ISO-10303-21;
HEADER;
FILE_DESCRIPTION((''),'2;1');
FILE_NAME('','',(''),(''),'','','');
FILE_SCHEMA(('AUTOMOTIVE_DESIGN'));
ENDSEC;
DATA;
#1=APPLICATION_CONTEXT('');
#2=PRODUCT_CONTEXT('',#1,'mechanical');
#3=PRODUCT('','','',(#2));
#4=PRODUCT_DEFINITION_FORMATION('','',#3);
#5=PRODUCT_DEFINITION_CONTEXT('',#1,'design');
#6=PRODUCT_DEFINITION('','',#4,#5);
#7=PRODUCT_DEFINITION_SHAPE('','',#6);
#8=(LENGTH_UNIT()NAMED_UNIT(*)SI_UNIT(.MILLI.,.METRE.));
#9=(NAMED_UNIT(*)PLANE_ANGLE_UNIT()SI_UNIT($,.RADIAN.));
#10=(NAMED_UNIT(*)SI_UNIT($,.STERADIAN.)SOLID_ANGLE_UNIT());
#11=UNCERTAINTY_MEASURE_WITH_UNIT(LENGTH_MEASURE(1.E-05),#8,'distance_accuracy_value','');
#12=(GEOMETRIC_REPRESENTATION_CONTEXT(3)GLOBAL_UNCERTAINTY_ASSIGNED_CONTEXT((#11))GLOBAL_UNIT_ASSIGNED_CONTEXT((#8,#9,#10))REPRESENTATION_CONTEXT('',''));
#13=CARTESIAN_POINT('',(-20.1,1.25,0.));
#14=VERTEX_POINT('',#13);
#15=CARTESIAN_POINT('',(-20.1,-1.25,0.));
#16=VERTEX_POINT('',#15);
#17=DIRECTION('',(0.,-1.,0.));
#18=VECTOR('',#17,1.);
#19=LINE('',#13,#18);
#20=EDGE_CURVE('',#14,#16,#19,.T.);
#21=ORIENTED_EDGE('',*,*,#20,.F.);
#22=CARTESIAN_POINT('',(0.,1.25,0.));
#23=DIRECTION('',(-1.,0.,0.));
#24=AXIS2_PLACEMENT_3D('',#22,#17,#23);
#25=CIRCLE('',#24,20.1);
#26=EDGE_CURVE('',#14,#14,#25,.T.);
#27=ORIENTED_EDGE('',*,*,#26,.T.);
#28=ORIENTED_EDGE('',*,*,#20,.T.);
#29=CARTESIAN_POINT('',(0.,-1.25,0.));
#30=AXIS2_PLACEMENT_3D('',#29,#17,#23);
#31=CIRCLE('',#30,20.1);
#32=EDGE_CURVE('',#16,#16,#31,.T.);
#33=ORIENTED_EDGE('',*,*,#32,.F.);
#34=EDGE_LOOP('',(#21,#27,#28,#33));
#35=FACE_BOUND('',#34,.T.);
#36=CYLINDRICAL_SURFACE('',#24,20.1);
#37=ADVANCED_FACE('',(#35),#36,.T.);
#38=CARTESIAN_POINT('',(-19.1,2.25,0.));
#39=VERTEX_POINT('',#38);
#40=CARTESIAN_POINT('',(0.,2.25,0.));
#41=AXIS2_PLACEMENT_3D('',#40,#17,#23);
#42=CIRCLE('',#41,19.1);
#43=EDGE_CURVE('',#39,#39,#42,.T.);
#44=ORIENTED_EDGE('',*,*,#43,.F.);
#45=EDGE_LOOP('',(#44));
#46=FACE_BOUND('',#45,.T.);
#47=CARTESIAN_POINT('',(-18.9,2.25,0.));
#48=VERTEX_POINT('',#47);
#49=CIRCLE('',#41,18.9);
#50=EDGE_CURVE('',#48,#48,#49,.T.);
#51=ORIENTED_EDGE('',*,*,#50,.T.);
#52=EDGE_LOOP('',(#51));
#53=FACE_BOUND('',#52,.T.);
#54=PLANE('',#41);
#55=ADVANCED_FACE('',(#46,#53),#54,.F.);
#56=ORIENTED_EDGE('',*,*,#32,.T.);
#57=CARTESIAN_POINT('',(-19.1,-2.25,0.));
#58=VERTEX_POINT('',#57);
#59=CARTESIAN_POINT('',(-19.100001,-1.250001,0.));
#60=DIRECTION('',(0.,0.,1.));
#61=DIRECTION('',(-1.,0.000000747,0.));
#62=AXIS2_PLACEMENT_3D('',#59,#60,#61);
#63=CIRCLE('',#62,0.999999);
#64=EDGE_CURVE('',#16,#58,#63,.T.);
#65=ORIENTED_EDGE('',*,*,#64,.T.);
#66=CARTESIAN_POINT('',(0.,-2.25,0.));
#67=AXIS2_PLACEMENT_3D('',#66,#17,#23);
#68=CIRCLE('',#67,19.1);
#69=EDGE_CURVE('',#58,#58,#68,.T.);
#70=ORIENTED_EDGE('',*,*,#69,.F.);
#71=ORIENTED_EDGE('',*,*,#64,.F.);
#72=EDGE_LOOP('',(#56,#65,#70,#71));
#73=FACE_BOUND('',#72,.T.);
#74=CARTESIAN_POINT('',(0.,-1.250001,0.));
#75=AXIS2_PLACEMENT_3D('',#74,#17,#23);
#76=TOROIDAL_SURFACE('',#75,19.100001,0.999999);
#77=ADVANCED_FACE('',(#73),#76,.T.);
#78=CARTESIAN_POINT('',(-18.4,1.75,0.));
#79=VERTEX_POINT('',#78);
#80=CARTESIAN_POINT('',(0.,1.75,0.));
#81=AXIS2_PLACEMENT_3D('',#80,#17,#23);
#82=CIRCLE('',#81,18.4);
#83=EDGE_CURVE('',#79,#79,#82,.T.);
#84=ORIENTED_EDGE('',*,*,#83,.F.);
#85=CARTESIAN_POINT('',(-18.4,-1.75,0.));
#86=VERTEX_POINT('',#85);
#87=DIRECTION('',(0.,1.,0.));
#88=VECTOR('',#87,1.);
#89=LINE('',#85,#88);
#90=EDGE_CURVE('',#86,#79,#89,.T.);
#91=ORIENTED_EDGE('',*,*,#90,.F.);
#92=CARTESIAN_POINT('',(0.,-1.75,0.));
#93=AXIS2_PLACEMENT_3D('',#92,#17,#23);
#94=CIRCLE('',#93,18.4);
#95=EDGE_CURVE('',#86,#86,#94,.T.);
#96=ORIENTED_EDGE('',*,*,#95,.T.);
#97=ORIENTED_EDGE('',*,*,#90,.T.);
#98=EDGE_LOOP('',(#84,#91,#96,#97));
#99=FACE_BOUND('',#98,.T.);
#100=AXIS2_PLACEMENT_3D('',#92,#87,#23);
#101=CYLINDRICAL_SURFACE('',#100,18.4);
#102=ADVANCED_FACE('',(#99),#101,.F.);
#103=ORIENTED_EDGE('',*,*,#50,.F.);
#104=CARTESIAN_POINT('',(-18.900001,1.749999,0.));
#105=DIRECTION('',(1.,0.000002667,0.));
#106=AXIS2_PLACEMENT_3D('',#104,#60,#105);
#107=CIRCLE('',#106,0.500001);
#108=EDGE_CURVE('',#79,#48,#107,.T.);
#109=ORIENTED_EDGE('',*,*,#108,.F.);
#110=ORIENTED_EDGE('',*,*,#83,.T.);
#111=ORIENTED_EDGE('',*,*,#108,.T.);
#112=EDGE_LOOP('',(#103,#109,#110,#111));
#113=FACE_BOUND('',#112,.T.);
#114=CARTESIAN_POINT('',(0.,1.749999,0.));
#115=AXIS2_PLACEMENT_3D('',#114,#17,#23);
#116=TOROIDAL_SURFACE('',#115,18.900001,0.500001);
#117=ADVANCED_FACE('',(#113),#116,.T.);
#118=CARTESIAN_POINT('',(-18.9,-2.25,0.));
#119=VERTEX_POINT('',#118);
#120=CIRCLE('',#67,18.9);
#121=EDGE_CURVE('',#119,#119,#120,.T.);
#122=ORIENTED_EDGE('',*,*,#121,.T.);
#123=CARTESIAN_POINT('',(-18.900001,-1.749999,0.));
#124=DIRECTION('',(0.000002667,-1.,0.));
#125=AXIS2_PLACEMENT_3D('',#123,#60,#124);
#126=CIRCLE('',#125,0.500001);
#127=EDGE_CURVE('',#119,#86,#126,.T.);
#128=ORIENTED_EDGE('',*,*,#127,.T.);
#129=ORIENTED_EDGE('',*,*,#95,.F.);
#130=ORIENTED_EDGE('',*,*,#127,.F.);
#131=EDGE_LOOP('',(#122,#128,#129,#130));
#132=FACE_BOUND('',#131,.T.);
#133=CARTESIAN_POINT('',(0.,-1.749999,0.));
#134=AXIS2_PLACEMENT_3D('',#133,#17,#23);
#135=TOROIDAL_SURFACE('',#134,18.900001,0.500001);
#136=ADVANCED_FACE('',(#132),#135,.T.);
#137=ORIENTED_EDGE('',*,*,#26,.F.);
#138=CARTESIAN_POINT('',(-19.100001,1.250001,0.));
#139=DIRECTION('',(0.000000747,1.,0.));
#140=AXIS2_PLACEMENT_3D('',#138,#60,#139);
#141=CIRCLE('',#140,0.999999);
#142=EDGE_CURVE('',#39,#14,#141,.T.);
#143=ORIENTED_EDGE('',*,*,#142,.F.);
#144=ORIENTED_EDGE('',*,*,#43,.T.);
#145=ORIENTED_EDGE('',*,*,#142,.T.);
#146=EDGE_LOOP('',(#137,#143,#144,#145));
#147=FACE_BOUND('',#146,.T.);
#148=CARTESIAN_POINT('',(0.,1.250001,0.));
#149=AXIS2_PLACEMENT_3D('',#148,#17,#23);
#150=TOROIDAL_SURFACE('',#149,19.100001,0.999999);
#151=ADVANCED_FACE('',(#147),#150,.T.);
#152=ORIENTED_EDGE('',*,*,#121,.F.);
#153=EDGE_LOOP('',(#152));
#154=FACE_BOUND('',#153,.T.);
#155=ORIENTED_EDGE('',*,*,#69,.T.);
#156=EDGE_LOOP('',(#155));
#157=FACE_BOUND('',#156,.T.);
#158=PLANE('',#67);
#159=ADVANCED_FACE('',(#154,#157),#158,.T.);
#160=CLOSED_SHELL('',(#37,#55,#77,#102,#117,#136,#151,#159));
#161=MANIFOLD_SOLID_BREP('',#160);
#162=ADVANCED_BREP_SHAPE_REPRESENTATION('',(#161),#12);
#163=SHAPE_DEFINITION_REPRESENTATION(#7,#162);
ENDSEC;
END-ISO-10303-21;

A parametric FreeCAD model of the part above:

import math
import FreeCAD as App
import Part
import Sketcher
from FreeCAD import Vector

doc = App.newDocument("Part")
body = doc.addObject("PartDesign::Body", "Body")

# Sketch on XY plane
sketch1 = body.newObject("Sketcher::SketchObject", "Sketch")
sketch1.AttachmentSupport = (doc.getObject("XY_Plane"), [""])
sketch1.MapMode = "FlatFace"
sketch1.addGeometry(Part.ArcOfCircle(Part.Circle(Vector(-18.900001, -1.749999, 0), Vector(0, 0, 1), 0.500001), math.radians(-89.999847), math.radians(-0.000153)), False)
sketch1.addGeometry(Part.LineSegment(Vector(-18.4, -1.75, 0), Vector(-18.4, 1.75, 0)), False)
sketch1.addGeometry(Part.ArcOfCircle(Part.Circle(Vector(-18.900001, 1.749999, 0), Vector(0, 0, 1), 0.500001), math.radians(0.000153), math.radians(89.999847)), False)
sketch1.addGeometry(Part.LineSegment(Vector(-18.9, 2.25, 0), Vector(-19.1, 2.25, 0)), False)
sketch1.addGeometry(Part.ArcOfCircle(Part.Circle(Vector(-19.100001, 1.250001, 0), Vector(0, 0, 1), 0.999999), math.radians(89.999957), math.radians(180.000043)), False)
sketch1.addGeometry(Part.LineSegment(Vector(-20.1, 1.25, 0), Vector(-20.1, -1.25, 0)), False)
sketch1.addGeometry(Part.ArcOfCircle(Part.Circle(Vector(-19.100001, -1.250001, 0), Vector(0, 0, 1), 0.999999), math.radians(179.999957), math.radians(270.000043)), False)
sketch1.addGeometry(Part.LineSegment(Vector(-19.1, -2.25, 0), Vector(-18.9, -2.25, 0)), False)
sketch1.addConstraint(Sketcher.Constraint("Coincident", 0, 2, 1, 1))
sketch1.addConstraint(Sketcher.Constraint("Coincident", 1, 2, 2, 1))
sketch1.addConstraint(Sketcher.Constraint("Coincident", 2, 2, 3, 1))
sketch1.addConstraint(Sketcher.Constraint("Tangent", 3, 2, 4, 1))
sketch1.addConstraint(Sketcher.Constraint("Tangent", 4, 2, 5, 1))
sketch1.addConstraint(Sketcher.Constraint("Tangent", 5, 2, 6, 1))
sketch1.addConstraint(Sketcher.Constraint("Tangent", 6, 2, 7, 1))
sketch1.addConstraint(Sketcher.Constraint("Coincident", 7, 2, 0, 1))
sketch1.addConstraint(Sketcher.Constraint("Vertical", 1))
sketch1.addConstraint(Sketcher.Constraint("Horizontal", 3))
sketch1.addConstraint(Sketcher.Constraint("Vertical", 5))
sketch1.addConstraint(Sketcher.Constraint("Horizontal", 7))
sketch1.addConstraint(Sketcher.Constraint("Equal", 0, 2))
sketch1.addConstraint(Sketcher.Constraint("Equal", 4, 6))
sketch1.addConstraint(Sketcher.Constraint("Symmetric", 2, 2, 7, 2, -1))
sketch1.addConstraint(Sketcher.Constraint("Horizontal", 2, 3, 1, 2))
sketch1.addConstraint(Sketcher.Constraint("Vertical", 0, 3, 2, 2))
sketch1.addConstraint(Sketcher.Constraint("Radius", 4, 0.999999))
sketch1.addConstraint(Sketcher.Constraint("Radius", 0, 0.500001))
sketch1.addConstraint(Sketcher.Constraint("DistanceX", 3, 2, 3, 1, 0.2))
sketch1.addConstraint(Sketcher.Constraint("DistanceY", 1, 1, 1, 2, 3.5))
sketch1.addConstraint(Sketcher.Constraint("DistanceY", 5, 2, 5, 1, 2.5))
sketch1.addConstraint(Sketcher.Constraint("DistanceX", 0, 3, -1, 1, 18.900001))
revolution = body.newObject("PartDesign::Revolution", "Revolution")
revolution.Profile = sketch1
revolution.ReferenceAxis = (sketch1, ["V_Axis"])
revolution.Angle = 360

doc.recompute()
